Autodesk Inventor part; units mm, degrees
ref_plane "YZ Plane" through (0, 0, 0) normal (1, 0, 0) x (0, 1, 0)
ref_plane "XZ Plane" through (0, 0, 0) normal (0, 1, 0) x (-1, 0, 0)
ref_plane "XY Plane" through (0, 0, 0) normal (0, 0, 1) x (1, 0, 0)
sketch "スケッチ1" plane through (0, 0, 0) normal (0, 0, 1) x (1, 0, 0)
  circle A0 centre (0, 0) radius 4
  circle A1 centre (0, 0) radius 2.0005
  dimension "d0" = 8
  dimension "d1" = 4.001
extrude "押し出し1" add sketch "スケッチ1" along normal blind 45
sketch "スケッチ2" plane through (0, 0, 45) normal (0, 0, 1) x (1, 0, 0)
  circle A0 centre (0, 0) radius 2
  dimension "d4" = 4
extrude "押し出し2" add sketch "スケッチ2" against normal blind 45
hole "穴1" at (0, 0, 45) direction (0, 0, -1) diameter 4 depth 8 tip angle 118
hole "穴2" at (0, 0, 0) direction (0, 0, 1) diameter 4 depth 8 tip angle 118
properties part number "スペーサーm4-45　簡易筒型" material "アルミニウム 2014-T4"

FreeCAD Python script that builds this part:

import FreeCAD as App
import Part
import Sketcher

V = App.Vector
Q = App.Units.Quantity

doc = App.newDocument("Part")
body = doc.addObject("PartDesign::Body", "Body")
body.AllowCompound = True

# Sketch on XY plane
sketch1 = doc.addObject("Sketcher::SketchObject", "Sketch")
body.addObject(sketch1)
sketch1.AttachmentSupport = (doc.XY_Plane, [""])
sketch1.MapMode = "FlatFace"
sketch1.addGeometry(Part.Circle(V(0, 0, 0), V(0, 0, 1), 4), False)
sketch1.addGeometry(Part.Circle(V(0, 0, 0), V(0, 0, 1), 2), False)
sketch1.addConstraint(Sketcher.Constraint("Coincident", 0, 3, -1, 1))
sketch1.addConstraint(Sketcher.Constraint("Coincident", 1, 3, -1, 1))
sketch1.addConstraint(Sketcher.Constraint("Diameter", 0, Q("8 mm")))
sketch1.addConstraint(Sketcher.Constraint("Diameter", 1, Q("4.001 mm")))
pad1 = doc.addObject("PartDesign::Pad", "Pad")
body.addObject(pad1)
pad1.Profile = sketch1
pad1.Length = 45

# Sketch on XY plane
sketch2 = doc.addObject("Sketcher::SketchObject", "Sketch001")
body.addObject(sketch2)
sketch2.AttachmentSupport = (doc.XY_Plane, [""])
sketch2.MapMode = "FlatFace"
sketch2.AttachmentOffset = App.Placement(V(0, 0, 45), App.Rotation())
sketch2.addGeometry(Part.Circle(V(0, 0, 0), V(0, 0, 1), 2), False)
sketch2.addConstraint(Sketcher.Constraint("Coincident", 0, 3, -1, 1))
sketch2.addConstraint(Sketcher.Constraint("Diameter", 0, Q("4 mm")))
pad2 = doc.addObject("PartDesign::Pad", "Pad001")
body.addObject(pad2)
pad2.Profile = sketch2
pad2.Length = 45
pad2.Reversed = True

# Sketch on XY plane
sketch3 = doc.addObject("Sketcher::SketchObject", "Sketch002")
body.addObject(sketch3)
sketch3.AttachmentSupport = (doc.XY_Plane, [""])
sketch3.MapMode = "FlatFace"
sketch3.AttachmentOffset = App.Placement(V(0, 0, 45), App.Rotation())
sketch3.addGeometry(Part.Circle(V(0, 0, 0), V(0, 0, 1), 2), False)
sketch3.addConstraint(Sketcher.Constraint("Coincident", 0, 3, -1, 1))
sketch3.addConstraint(Sketcher.Constraint("Diameter", 0, Q("4 mm")))
doc.recompute()
hole = doc.addObject("PartDesign::Hole", "Hole")
body.addObject(hole)
hole.Profile = sketch3
hole.ThreadType = "None"
hole.Diameter = 4
hole.DepthType = "Dimension"
hole.Depth = 8
hole.DrillPoint = "Angled"
hole.DrillPointAngle = 118

# Sketch on XY plane
sketch4 = doc.addObject("Sketcher::SketchObject", "Sketch003")
body.addObject(sketch4)
sketch4.AttachmentSupport = (doc.XY_Plane, [""])
sketch4.MapMode = "FlatFace"
sketch4.addGeometry(Part.Circle(V(0, 0, 0), V(0, 0, 1), 2), False)
sketch4.addConstraint(Sketcher.Constraint("Coincident", 0, 3, -1, 1))
sketch4.addConstraint(Sketcher.Constraint("Diameter", 0, Q("4 mm")))
doc.recompute()
hole2 = doc.addObject("PartDesign::Hole", "Hole001")
body.addObject(hole2)
hole2.Profile = sketch4
hole2.ThreadType = "None"
hole2.Diameter = 4
hole2.DepthType = "Dimension"
hole2.Depth = 8
hole2.DrillPoint = "Angled"
hole2.DrillPointAngle = 118
hole2.Reversed = True

doc.recompute()
